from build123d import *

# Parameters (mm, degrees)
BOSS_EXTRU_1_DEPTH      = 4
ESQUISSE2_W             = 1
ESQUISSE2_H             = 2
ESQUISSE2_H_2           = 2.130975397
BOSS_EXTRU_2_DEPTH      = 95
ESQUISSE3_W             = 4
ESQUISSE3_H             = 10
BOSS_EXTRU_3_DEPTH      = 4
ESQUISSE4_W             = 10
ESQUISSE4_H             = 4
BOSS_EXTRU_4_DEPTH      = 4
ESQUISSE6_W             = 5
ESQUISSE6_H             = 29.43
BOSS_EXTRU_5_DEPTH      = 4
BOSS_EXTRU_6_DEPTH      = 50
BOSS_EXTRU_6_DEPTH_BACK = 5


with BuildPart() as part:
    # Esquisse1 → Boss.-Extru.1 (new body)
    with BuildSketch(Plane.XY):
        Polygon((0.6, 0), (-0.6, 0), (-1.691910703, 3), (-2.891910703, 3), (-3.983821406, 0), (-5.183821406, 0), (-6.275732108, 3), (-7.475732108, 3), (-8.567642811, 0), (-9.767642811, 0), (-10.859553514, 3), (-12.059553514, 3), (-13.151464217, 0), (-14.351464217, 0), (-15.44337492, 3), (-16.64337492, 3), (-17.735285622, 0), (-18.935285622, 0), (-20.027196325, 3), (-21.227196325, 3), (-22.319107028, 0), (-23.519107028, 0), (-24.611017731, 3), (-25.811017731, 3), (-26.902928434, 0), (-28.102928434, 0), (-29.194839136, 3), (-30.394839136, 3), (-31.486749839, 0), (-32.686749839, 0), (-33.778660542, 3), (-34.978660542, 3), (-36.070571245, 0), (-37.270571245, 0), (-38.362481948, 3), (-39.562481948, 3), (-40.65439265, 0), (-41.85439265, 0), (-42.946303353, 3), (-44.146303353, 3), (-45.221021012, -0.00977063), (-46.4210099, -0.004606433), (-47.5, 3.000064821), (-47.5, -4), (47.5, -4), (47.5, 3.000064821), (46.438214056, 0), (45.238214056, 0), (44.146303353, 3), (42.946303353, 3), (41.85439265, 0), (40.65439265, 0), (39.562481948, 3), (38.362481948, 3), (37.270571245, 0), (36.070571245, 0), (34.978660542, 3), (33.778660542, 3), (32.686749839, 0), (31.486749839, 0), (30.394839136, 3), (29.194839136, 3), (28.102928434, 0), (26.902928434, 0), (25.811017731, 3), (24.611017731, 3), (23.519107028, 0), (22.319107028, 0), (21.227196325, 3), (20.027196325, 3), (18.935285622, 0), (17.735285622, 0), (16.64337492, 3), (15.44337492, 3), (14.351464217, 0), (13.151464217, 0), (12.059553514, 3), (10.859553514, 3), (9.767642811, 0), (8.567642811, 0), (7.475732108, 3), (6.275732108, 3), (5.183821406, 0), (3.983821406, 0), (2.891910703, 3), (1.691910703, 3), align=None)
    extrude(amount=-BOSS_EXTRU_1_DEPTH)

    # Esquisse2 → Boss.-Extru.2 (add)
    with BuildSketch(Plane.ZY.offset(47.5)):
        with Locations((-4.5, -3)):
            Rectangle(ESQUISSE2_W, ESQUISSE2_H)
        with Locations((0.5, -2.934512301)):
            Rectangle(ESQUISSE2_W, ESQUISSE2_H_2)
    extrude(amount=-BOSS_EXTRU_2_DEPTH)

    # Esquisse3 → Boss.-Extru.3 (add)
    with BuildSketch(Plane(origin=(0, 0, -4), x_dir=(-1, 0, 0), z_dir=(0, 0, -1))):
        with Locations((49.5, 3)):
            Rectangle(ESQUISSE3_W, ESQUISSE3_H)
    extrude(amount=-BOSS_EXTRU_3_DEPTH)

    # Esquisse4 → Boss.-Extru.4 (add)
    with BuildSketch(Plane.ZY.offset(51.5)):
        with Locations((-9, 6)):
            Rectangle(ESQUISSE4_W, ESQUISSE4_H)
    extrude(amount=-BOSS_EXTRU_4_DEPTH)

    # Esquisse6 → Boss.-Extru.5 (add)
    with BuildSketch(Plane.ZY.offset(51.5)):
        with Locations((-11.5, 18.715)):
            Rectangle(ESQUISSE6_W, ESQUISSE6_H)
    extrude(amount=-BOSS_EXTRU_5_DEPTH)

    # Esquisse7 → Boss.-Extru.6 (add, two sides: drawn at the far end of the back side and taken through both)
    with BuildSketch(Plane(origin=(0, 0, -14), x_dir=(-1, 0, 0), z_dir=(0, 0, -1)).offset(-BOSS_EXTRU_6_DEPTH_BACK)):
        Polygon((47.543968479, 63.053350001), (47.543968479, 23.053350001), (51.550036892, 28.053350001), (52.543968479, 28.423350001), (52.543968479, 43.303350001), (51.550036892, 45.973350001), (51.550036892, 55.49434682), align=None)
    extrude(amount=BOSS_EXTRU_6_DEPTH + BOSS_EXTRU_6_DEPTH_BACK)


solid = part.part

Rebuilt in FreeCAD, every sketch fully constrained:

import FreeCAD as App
import Part
import Sketcher

V = App.Vector
Q = App.Units.Quantity


def add_polygon(sketch, points):
    """Adds a closed chain of lines whose ends are joined by coincident constraints."""
    first, n = sketch.GeometryCount, len(points)
    for a, b in zip(points, points[1:] + points[:1]):
        sketch.addGeometry(Part.LineSegment(App.Vector(*a, 0), App.Vector(*b, 0)), False)
    for i in range(n):
        sketch.addConstraint(Sketcher.Constraint("Coincident", first + i, 2, first + (i + 1) % n, 1))

doc = App.newDocument("Part")
params = doc.addObject("Spreadsheet::Sheet", "Params")
for row, (alias, value) in enumerate([
    ("sketch1_width", "95 mm"),
    ("sketch1_width2", "1.2 mm"),
    ("sketch1_length", "1.2 mm"),
    ("pad1_length", "4 mm"),
    ("sketch2_width", "2 mm"),
    ("sketch2_height", "1 mm"),
    ("pad2_length", "95 mm"),
    ("sketch3_width", "4 mm"),
    ("sketch3_height", "10 mm"),
    ("pad3_length", "4 mm"),
    ("sketch4_width", "4 mm"),
    ("sketch4_height", "10 mm"),
    ("pad4_length", "4 mm"),
    ("sketch5_height", "5 mm"),
    ("sketch5_width", "29.43 mm"),
    ("pad5_length", "4 mm"),
    ("sketch6_height", "40 mm"),
    ("sketch6_height2", "14.88 mm"),
    ("pad6_length", "50 mm"),
    ("pad6_length2", "5 mm"),
], start=1):
    params.set(f"A{row}", alias)
    params.set(f"B{row}", "=" + value)
    params.setAlias(f"B{row}", alias)

body = doc.addObject("PartDesign::Body", "Body")

# Sketch on XY plane
sketch1 = body.newObject("Sketcher::SketchObject", "Sketch")
sketch1.AttachmentSupport = (doc.getObject("XY_Plane"), [""])
sketch1.MapMode = "FlatFace"
add_polygon(sketch1, [(0.6, 0), (-0.6, 0), (-1.7, 3), (-2.9, 3), (-4, 0), (-5.2, 0), (-6.3, 3), (-7.5, 3), (-8.6, 0), (-9.8, 0), (-10.9, 3), (-12.1, 3), (-13.2, 0), (-14.4, 0), (-15.4, 3), (-16.6, 3), (-17.7, 0), (-18.9, 0), (-20, 3), (-21.2, 3), (-22.3, 0), (-23.5, 0), (-24.6, 3), (-25.8, 3), (-26.9, 0), (-28.1, 0), (-29.2, 3), (-30.4, 3), (-31.5, 0), (-32.7, 0), (-33.8, 3), (-35, 3), (-36.1, 0), (-37.3, 0), (-38.4, 3), (-39.6, 3), (-40.7, 0), (-41.9, 0), (-42.9, 3), (-44.1, 3), (-45.2, 0), (-46.4, 0), (-47.5, 3), (-47.5, -4), (47.5, -4), (47.5, 3), (46.4, 0), (45.2, 0), (44.1, 3), (42.9, 3), (41.9, 0), (40.7, 0), (39.6, 3), (38.4, 3), (37.3, 0), (36.1, 0), (35, 3), (33.8, 3), (32.7, 0), (31.5, 0), (30.4, 3), (29.2, 3), (28.1, 0), (26.9, 0), (25.8, 3), (24.6, 3), (23.5, 0), (22.3, 0), (21.2, 3), (20, 3), (18.9, 0), (17.7, 0), (16.6, 3), (15.4, 3), (14.4, 0), (13.2, 0), (12.1, 3), (10.9, 3), (9.8, 0), (8.6, 0), (7.5, 3), (6.3, 3), (5.2, 0), (4, 0), (2.9, 3), (1.7, 3)])  # lines 0-85
sketch1.addConstraint([
    Sketcher.Constraint("Horizontal", 0),
    Sketcher.Constraint("Horizontal", 2),
    Sketcher.Constraint("Horizontal", 4),
    Sketcher.Constraint("Horizontal", 6),
    Sketcher.Constraint("Horizontal", 8),
    Sketcher.Constraint("Horizontal", 10),
    Sketcher.Constraint("Horizontal", 12),
    Sketcher.Constraint("Horizontal", 14),
    Sketcher.Constraint("Horizontal", 16),
    Sketcher.Constraint("Horizontal", 18),
    Sketcher.Constraint("Horizontal", 20),
    Sketcher.Constraint("Horizontal", 22),
    Sketcher.Constraint("Horizontal", 24),
    Sketcher.Constraint("Horizontal", 26),
    Sketcher.Constraint("Horizontal", 28),
    Sketcher.Constraint("Horizontal", 30),
    Sketcher.Constraint("Horizontal", 32),
    Sketcher.Constraint("Horizontal", 34),
    Sketcher.Constraint("Horizontal", 36),
    Sketcher.Constraint("Horizontal", 38),
    Sketcher.Constraint("Vertical", 42),
    Sketcher.Constraint("Horizontal", 43),
    Sketcher.Constraint("Vertical", 44),
    Sketcher.Constraint("Horizontal", 46),
    Sketcher.Constraint("Horizontal", 48),
    Sketcher.Constraint("Horizontal", 50),
    Sketcher.Constraint("Horizontal", 52),
    Sketcher.Constraint("Horizontal", 54),
    Sketcher.Constraint("Horizontal", 56),
    Sketcher.Constraint("Horizontal", 58),
    Sketcher.Constraint("Horizontal", 60),
    Sketcher.Constraint("Horizontal", 62),
    Sketcher.Constraint("Horizontal", 64),
    Sketcher.Constraint("Horizontal", 66),
    Sketcher.Constraint("Horizontal", 68),
    Sketcher.Constraint("Horizontal", 70),
    Sketcher.Constraint("Horizontal", 72),
    Sketcher.Constraint("Horizontal", 74),
    Sketcher.Constraint("Horizontal", 76),
    Sketcher.Constraint("Horizontal", 78),
    Sketcher.Constraint("Horizontal", 80),
    Sketcher.Constraint("Horizontal", 82),
    Sketcher.Constraint("Horizontal", 84),
    Sketcher.Constraint("Symmetric", 36, 2, 49, 2, -1, 1),
    Sketcher.Constraint("Symmetric", 32, 2, 53, 2, -1, 1),
    Sketcher.Constraint("Symmetric", 28, 2, 57, 2, -1, 1),
    Sketcher.Constraint("Symmetric", 24, 2, 61, 2, -1, 1),
    Sketcher.Constraint("Symmetric", 20, 2, 65, 2, -1, 1),
    Sketcher.Constraint("Symmetric", 16, 2, 69, 2, -1, 1),
    Sketcher.Constraint("Symmetric", 12, 2, 73, 2, -1, 1),
    Sketcher.Constraint("Symmetric", 8, 2, 77, 2, -1, 1),
    Sketcher.Constraint("Symmetric", 4, 2, 81, 2, -1, 1),
    Sketcher.Constraint("Symmetric", 0, 2, 85, 2, -1, 1),
    Sketcher.Constraint("Symmetric", 41, 2, 44, 2, -2),
    Sketcher.Constraint("Symmetric", 38, 2, 47, 2, -2),
    Sketcher.Constraint("Symmetric", 35, 2, 50, 2, -2),
    Sketcher.Constraint("Symmetric", 34, 2, 51, 2, -2),
    Sketcher.Constraint("Symmetric", 31, 2, 54, 2, -2),
    Sketcher.Constraint("Symmetric", 30, 2, 55, 2, -2),
    Sketcher.Constraint("Symmetric", 27, 2, 58, 2, -2),
    Sketcher.Constraint("Symmetric", 26, 2, 59, 2, -2),
    Sketcher.Constraint("Symmetric", 23, 2, 62, 2, -2),
    Sketcher.Constraint("Symmetric", 22, 2, 63, 2, -2),
    Sketcher.Constraint("Symmetric", 19, 2, 66, 2, -2),
    Sketcher.Constraint("Symmetric", 18, 2, 67, 2, -2),
    Sketcher.Constraint("Symmetric", 15, 2, 70, 2, -2),
    Sketcher.Constraint("Symmetric", 14, 2, 71, 2, -2),
    Sketcher.Constraint("Symmetric", 11, 2, 74, 2, -2),
    Sketcher.Constraint("Symmetric", 10, 2, 75, 2, -2),
    Sketcher.Constraint("Symmetric", 7, 2, 78, 2, -2),
    Sketcher.Constraint("Symmetric", 6, 2, 79, 2, -2),
    Sketcher.Constraint("Symmetric", 3, 2, 82, 2, -2),
    Sketcher.Constraint("Symmetric", 2, 2, 83, 2, -2),
    Sketcher.Constraint("PointOnObject", 45, 2, -1),
    Sketcher.Constraint("Parallel", 1, 5),
    Sketcher.Constraint("Parallel", 3, 7),
    Sketcher.Constraint("Parallel", 5, 9),
    Sketcher.Constraint("Parallel", 7, 11),
    Sketcher.Constraint("Parallel", 9, 13),
    Sketcher.Constraint("Parallel", 11, 15),
    Sketcher.Constraint("Parallel", 13, 17),
    Sketcher.Constraint("Parallel", 15, 19),
    Sketcher.Constraint("Parallel", 17, 21),
    Sketcher.Constraint("Parallel", 19, 23),
    Sketcher.Constraint("Parallel", 21, 25),
    Sketcher.Constraint("Parallel", 23, 27),
    Sketcher.Constraint("Parallel", 25, 29),
    Sketcher.Constraint("Parallel", 27, 31),
    Sketcher.Constraint("Parallel", 29, 33),
    Sketcher.Constraint("Parallel", 31, 35),
    Sketcher.Constraint("Parallel", 33, 37),
    Sketcher.Constraint("Parallel", 37, 47),
    Sketcher.Constraint("Parallel", 35, 49),
    Sketcher.Constraint("Parallel", 47, 51),
    Sketcher.Constraint("Parallel", 49, 53),
    Sketcher.Constraint("Parallel", 53, 57),
    Sketcher.Constraint("Parallel", 57, 61),
    Sketcher.Constraint("Parallel", 61, 65),
    Sketcher.Constraint("Parallel", 65, 69),
    Sketcher.Constraint("Parallel", 69, 73),
    Sketcher.Constraint("Parallel", 73, 77),
    Sketcher.Constraint("Parallel", 77, 81),
    Sketcher.Constraint("Parallel", 81, 85),
    Sketcher.Constraint("Horizontal", 2, 2, 5, 2),
    Sketcher.Constraint("Horizontal", 6, 2, 9, 2),
    Sketcher.Constraint("Horizontal", 10, 2, 13, 2),
    Sketcher.Constraint("Horizontal", 14, 2, 17, 2),
    Sketcher.Constraint("Horizontal", 18, 2, 21, 2),
    Sketcher.Constraint("Horizontal", 22, 2, 25, 2),
    Sketcher.Constraint("Horizontal", 26, 2, 29, 2),
    Sketcher.Constraint("Horizontal", 30, 2, 33, 2),
    Sketcher.Constraint("Horizontal", 34, 2, 37, 2),
    Sketcher.Constraint("Equal", 0, 2),
    Sketcher.Constraint("Equal", 2, 4),
    Sketcher.Constraint("Equal", 4, 6),
    Sketcher.Constraint("Equal", 6, 8),
    Sketcher.Constraint("Equal", 8, 10),
    Sketcher.Constraint("Equal", 10, 12),
    Sketcher.Constraint("Equal", 12, 14),
    Sketcher.Constraint("Equal", 14, 16),
    Sketcher.Constraint("Equal", 16, 18),
    Sketcher.Constraint("Equal", 18, 20),
    Sketcher.Constraint("Equal", 20, 22),
    Sketcher.Constraint("Equal", 22, 24),
    Sketcher.Constraint("Equal", 24, 26),
    Sketcher.Constraint("Equal", 26, 28),
    Sketcher.Constraint("Equal", 28, 30),
    Sketcher.Constraint("Equal", 30, 32),
    Sketcher.Constraint("Equal", 32, 34),
    Sketcher.Constraint("Equal", 34, 36),
    Sketcher.Constraint("Equal", 36, 38),
    Sketcher.Constraint("Equal", 38, 46),
    Sketcher.Constraint("Equal", 37, 41),
    Sketcher.Constraint("DistanceX", 43, 1, 43, 2, 95.0),
    Sketcher.Constraint("Angle", 1, Q("110 deg")),
    Sketcher.Constraint("DistanceX", 0, 2, 0, 1, 1.2),
    Sketcher.Constraint("DistanceY", -1, 1, 1, 2, 3.0),
    Sketcher.Constraint("DistanceY", 42, 2, -1, 1, 4.0),
    Sketcher.Constraint("Distance", 40, 1.2),
    Sketcher.Constraint("DistanceY", 42, 2, 42, 1, 7.000065),
    Sketcher.Constraint("DistanceX", 39, 2, -1, 1, 45.221021),
    Sketcher.Constraint("DistanceY", 39, 2, -1, 1, 0.009771),
])
sketch1.setExpression("Constraints[219]", "Params.sketch1_width")
sketch1.setExpression("Constraints[221]", "Params.sketch1_width2")
sketch1.setExpression("Constraints[224]", "Params.sketch1_length")
pad1 = body.newObject("PartDesign::Pad", "Pad")
pad1.Profile = sketch1
pad1.setExpression("Length", "Params.pad1_length")
pad1.Reversed = True

# Sketch on YZ plane
sketch2 = body.newObject("Sketcher::SketchObject", "Sketch001")
sketch2.AttachmentSupport = (doc.getObject("YZ_Plane"), [""])
sketch2.MapMode = "FlatFace"
sketch2.AttachmentOffset = App.Placement(V(0, 0, -47.5), App.Rotation())
add_polygon(sketch2, [(-2, -5), (-4, -5), (-4, -4), (-2, -4)])  # lines 0-3
add_polygon(sketch2, [(-1.9, 0), (-4, 0), (-4, 1), (-1.9, 1)])  # lines 4-7
sketch2.addConstraint([
    Sketcher.Constraint("Horizontal", 0),
    Sketcher.Constraint("Vertical", 1),
    Sketcher.Constraint("Horizontal", 2),
    Sketcher.Constraint("Vertical", 3),
    Sketcher.Constraint("Horizontal", 4),
    Sketcher.Constraint("Vertical", 5),
    Sketcher.Constraint("Horizontal", 6),
    Sketcher.Constraint("Vertical", 7),
    Sketcher.Constraint("PointOnObject", 4, 2, -1),
    Sketcher.Constraint("Vertical", 1, 2, 4, 2),
    Sketcher.Constraint("Equal", 3, 5),
    Sketcher.Constraint("DistanceX", 0, 2, 0, 1, 2.0),
    Sketcher.Constraint("DistanceY", 1, 1, 1, 2, 1.0),
    Sketcher.Constraint("DistanceX", 0, 2, -1, 1, 4.0),
    Sketcher.Constraint("DistanceY", 0, 2, -1, 1, 5.0),
    Sketcher.Constraint("DistanceX", 4, 2, 4, 1, 2.130975),
])
sketch2.setExpression("Constraints[19]", "Params.sketch2_width")
sketch2.setExpression("Constraints[20]", "Params.sketch2_height")
pad2 = body.newObject("PartDesign::Pad", "Pad001")
pad2.Profile = sketch2
pad2.setExpression("Length", "Params.pad2_length")

# Sketch on XY plane
sketch3 = body.newObject("Sketcher::SketchObject", "Sketch002")
sketch3.AttachmentSupport = (doc.getObject("XY_Plane"), [""])
sketch3.MapMode = "FlatFace"
sketch3.AttachmentOffset = App.Placement(V(0, 0, -4), App.Rotation())
add_polygon(sketch3, [(-47.5, 8), (-47.5, -2), (-51.5, -2), (-51.5, 8)])  # lines 0-3
sketch3.addConstraint([
    Sketcher.Constraint("Vertical", 0),
    Sketcher.Constraint("Horizontal", 1),
    Sketcher.Constraint("Vertical", 2),
    Sketcher.Constraint("Horizontal", 3),
    Sketcher.Constraint("DistanceX", 1, 2, 1, 1, 4.0),
    Sketcher.Constraint("DistanceY", 0, 2, 0, 1, 10.0),
    Sketcher.Constraint("DistanceY", 0, 2, -1, 1, 2.0),
    Sketcher.Constraint("DistanceX", 0, 2, -1, 1, 47.5),
])
sketch3.setExpression("Constraints[8]", "Params.sketch3_width")
sketch3.setExpression("Constraints[9]", "Params.sketch3_height")
pad3 = body.newObject("PartDesign::Pad", "Pad002")
pad3.Profile = sketch3
pad3.setExpression("Length", "Params.pad3_length")

# Sketch on YZ plane
sketch4 = body.newObject("Sketcher::SketchObject", "Sketch003")
sketch4.AttachmentSupport = (doc.getObject("YZ_Plane"), [""])
sketch4.MapMode = "FlatFace"
sketch4.AttachmentOffset = App.Placement(V(0, 0, -51.5), App.Rotation())
add_polygon(sketch4, [(8, -14), (4, -14), (4, -4), (8, -4)])  # lines 0-3
sketch4.addConstraint([
    Sketcher.Constraint("Horizontal", 0),
    Sketcher.Constraint("Vertical", 1),
    Sketcher.Constraint("Horizontal", 2),
    Sketcher.Constraint("Vertical", 3),
    Sketcher.Constraint("DistanceX", 0, 2, 0, 1, 4.0),
    Sketcher.Constraint("DistanceY", 1, 1, 1, 2, 10.0),
    Sketcher.Constraint("DistanceX", -1, 1, 0, 2, 4.0),
    Sketcher.Constraint("DistanceY", 0, 2, -1, 1, 14.0),
])
sketch4.setExpression("Constraints[8]", "Params.sketch4_width")
sketch4.setExpression("Constraints[9]", "Params.sketch4_height")
pad4 = body.newObject("PartDesign::Pad", "Pad003")
pad4.Profile = sketch4
pad4.setExpression("Length", "Params.pad4_length")

# Sketch on YZ plane
sketch5 = body.newObject("Sketcher::SketchObject", "Sketch004")
sketch5.AttachmentSupport = (doc.getObject("YZ_Plane"), [""])
sketch5.MapMode = "FlatFace"
sketch5.AttachmentOffset = App.Placement(V(0, 0, -51.5), App.Rotation())
add_polygon(sketch5, [(33, -14), (4, -14), (4, -9), (33, -9)])  # lines 0-3
sketch5.addConstraint([
    Sketcher.Constraint("Horizontal", 0),
    Sketcher.Constraint("Vertical", 1),
    Sketcher.Constraint("Horizontal", 2),
    Sketcher.Constraint("Vertical", 3),
    Sketcher.Constraint("DistanceY", 1, 1, 1, 2, 5.0),
    Sketcher.Constraint("DistanceX", -1, 1, 0, 2, 4.0),
    Sketcher.Constraint("DistanceY", 0, 2, -1, 1, 14.0),
    Sketcher.Constraint("DistanceX", 0, 2, 0, 1, 29.43),
])
sketch5.setExpression("Constraints[8]", "Params.sketch5_height")
sketch5.setExpression("Constraints[11]", "Params.sketch5_width")
pad5 = body.newObject("PartDesign::Pad", "Pad004")
pad5.Profile = sketch5
pad5.setExpression("Length", "Params.pad5_length")

# Sketch on XY plane
sketch6 = body.newObject("Sketcher::SketchObject", "Sketch005")
sketch6.AttachmentSupport = (doc.getObject("XY_Plane"), [""])
sketch6.MapMode = "FlatFace"
sketch6.AttachmentOffset = App.Placement(V(0, 0, -14), App.Rotation())
add_polygon(sketch6, [(-47.5, 63.1), (-47.5, 23.1), (-51.6, 28.1), (-52.5, 28.4), (-52.5, 43.3), (-51.6, 46), (-51.6, 55.5)])  # lines 0-6
sketch6.addConstraint([
    Sketcher.Constraint("Vertical", 0),
    Sketcher.Constraint("Vertical", 3),
    Sketcher.Constraint("Vertical", 5),
    Sketcher.Constraint("Perpendicular", 2, 4),
    Sketcher.Constraint("Vertical", 1, 2, 4, 2),
    Sketcher.Constraint("DistanceY", 0, 2, 0, 1, 40.0),
    Sketcher.Constraint("DistanceY", 0, 2, 1, 2, 5.0),
    Sketcher.Constraint("DistanceX", 2, 2, 0, 2, 5.0),
    Sketcher.Constraint("DistanceY", 3, 1, 3, 2, 14.88),
    Sketcher.Constraint("DistanceY", 1, 2, 2, 2, 0.37),
    Sketcher.Constraint("DistanceY", 3, 2, 4, 2, 2.67),
    Sketcher.Constraint("DistanceY", 5, 1, 5, 2, 9.520997),
    Sketcher.Constraint("DistanceX", 0, 2, -1, 1, 47.543968),
    Sketcher.Constraint("DistanceY", -1, 1, 0, 2, 23.05335),
])
sketch6.setExpression("Constraints[12]", "Params.sketch6_height")
sketch6.setExpression("Constraints[15]", "Params.sketch6_height2")
pad6 = body.newObject("PartDesign::Pad", "Pad005")
pad6.Profile = sketch6
pad6.Type = "TwoLengths"
pad6.setExpression("Length", "Params.pad6_length")
pad6.setExpression("Length2", "Params.pad6_length2")
pad6.Reversed = True

doc.recompute()
